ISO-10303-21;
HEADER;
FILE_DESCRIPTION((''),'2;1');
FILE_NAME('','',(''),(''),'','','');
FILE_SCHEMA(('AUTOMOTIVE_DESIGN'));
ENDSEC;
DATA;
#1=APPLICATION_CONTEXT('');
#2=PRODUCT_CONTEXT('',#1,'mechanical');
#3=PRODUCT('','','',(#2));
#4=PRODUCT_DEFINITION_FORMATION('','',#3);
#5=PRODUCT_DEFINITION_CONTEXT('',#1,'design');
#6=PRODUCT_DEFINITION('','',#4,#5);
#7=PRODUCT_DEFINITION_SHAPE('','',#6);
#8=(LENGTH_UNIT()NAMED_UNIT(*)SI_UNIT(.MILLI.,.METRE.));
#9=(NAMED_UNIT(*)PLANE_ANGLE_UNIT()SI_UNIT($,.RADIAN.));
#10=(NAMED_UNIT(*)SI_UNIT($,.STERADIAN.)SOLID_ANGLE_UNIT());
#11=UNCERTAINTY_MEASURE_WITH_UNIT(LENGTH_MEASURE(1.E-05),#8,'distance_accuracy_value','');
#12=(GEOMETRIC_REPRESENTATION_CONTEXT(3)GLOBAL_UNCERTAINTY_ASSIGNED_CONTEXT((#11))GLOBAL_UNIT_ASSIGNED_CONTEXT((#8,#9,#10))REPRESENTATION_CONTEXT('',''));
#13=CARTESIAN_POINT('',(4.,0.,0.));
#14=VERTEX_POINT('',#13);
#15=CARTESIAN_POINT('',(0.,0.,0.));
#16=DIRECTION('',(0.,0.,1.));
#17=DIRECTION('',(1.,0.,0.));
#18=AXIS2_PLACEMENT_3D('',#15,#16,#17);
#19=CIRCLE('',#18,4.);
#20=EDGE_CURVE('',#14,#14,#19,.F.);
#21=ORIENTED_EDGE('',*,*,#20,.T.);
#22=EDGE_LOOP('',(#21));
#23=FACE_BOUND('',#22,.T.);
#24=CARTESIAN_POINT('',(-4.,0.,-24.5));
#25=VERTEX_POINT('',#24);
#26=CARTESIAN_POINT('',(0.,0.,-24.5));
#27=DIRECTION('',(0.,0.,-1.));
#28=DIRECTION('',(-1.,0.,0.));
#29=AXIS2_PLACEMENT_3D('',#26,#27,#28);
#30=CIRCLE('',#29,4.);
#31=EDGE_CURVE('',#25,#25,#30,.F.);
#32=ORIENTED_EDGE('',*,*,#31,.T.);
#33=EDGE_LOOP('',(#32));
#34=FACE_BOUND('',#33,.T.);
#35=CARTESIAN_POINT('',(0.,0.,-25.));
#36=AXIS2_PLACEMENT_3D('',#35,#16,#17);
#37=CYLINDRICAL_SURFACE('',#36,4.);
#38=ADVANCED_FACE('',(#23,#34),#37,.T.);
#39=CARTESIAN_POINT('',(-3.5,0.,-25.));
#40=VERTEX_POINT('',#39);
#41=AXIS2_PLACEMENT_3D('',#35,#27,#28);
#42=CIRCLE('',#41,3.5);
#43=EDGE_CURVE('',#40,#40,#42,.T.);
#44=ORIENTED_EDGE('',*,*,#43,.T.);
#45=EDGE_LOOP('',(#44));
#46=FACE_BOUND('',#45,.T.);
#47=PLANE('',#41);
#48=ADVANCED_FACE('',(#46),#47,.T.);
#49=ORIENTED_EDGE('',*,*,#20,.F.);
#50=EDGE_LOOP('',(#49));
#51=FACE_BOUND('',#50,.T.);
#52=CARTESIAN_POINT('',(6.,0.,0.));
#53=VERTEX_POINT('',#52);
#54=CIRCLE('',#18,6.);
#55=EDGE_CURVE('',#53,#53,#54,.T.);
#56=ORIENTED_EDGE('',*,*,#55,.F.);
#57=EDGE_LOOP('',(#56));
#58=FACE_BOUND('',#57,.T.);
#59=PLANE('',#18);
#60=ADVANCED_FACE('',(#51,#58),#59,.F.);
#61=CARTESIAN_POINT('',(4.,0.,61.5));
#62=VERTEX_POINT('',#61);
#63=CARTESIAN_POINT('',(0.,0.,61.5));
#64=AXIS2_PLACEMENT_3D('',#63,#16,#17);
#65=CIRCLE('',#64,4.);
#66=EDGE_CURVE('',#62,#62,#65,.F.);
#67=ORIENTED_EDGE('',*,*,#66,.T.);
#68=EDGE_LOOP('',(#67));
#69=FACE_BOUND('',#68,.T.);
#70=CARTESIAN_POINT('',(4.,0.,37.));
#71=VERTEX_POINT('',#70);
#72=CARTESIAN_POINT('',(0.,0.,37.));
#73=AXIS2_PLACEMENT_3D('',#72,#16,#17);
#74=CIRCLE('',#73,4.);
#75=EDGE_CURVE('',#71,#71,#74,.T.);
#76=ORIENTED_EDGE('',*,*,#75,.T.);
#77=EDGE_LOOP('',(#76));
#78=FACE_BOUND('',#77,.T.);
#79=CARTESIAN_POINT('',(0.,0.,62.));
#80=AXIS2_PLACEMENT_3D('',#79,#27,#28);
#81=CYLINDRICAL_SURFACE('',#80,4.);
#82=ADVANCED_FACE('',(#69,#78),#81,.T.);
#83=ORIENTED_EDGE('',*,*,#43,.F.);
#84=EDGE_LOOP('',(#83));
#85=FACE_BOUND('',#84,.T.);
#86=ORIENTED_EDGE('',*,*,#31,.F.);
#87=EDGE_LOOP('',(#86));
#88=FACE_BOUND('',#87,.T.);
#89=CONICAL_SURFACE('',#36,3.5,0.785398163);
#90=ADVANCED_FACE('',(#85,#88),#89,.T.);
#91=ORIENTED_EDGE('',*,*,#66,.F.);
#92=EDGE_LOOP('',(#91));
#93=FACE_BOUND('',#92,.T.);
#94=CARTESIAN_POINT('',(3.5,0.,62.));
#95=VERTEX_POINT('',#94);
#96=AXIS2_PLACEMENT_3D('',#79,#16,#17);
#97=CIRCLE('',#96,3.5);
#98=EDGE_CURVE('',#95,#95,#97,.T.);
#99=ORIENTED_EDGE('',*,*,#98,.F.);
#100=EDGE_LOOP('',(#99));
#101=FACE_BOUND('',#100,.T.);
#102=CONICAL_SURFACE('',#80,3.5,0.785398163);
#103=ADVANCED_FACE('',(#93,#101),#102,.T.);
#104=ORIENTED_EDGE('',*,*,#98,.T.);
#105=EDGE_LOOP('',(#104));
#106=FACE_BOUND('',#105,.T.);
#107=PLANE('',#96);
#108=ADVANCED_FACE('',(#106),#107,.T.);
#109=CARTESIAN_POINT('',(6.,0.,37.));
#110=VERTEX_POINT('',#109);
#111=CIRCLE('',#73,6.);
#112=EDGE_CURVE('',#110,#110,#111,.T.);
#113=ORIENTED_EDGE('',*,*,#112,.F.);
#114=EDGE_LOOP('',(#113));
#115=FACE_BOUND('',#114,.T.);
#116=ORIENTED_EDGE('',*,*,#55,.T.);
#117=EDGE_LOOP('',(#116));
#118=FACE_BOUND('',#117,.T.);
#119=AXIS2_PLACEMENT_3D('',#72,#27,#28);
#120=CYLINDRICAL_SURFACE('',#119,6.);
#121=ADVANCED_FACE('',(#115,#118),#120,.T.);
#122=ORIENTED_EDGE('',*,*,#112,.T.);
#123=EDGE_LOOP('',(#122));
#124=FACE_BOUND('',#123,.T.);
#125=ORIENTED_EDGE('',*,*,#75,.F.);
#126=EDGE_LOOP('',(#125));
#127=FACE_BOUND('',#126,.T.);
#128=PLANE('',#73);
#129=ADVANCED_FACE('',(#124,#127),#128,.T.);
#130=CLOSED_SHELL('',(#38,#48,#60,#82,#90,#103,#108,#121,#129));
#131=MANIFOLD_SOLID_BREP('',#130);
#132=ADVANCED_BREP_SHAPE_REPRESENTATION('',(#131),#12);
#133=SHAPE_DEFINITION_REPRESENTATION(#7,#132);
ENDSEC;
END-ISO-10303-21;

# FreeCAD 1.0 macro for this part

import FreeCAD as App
import Part
import Sketcher

V = App.Vector
Q = App.Units.Quantity


def edges_at(feature, points):
    """Names of the edges that pass closest to the given points."""
    edges = feature.Shape.Edges
    near = lambda p: min(range(len(edges)), key=lambda i: edges[i].distToShape(Part.Vertex(*p))[0])
    return sorted({f"Edge{near(p) + 1}" for p in points})

doc = App.newDocument("Part")
body = doc.addObject("PartDesign::Body", "Body")

# Sketch on XY plane
sketch1 = doc.addObject("Sketcher::SketchObject", "Sketch")
body.addObject(sketch1)
sketch1.AttachmentSupport = (doc.XY_Plane, [""])
sketch1.MapMode = "FlatFace"
sketch1.addGeometry(Part.Circle(V(0, 0, 0), V(0, 0, 1), 6), False)
sketch1.addConstraint([
    Sketcher.Constraint("Coincident", 0, 3, -1, 1),
    Sketcher.Constraint("Diameter", 0, Q("12 mm")),
])
pad1 = doc.addObject("PartDesign::Pad", "Pad")
body.addObject(pad1)
pad1.Profile = sketch1
pad1.Length = 37

# Sketch on XY plane
sketch2 = doc.addObject("Sketcher::SketchObject", "Sketch001")
body.addObject(sketch2)
sketch2.AttachmentSupport = (doc.XY_Plane, [""])
sketch2.MapMode = "FlatFace"
sketch2.AttachmentOffset = App.Placement(V(0, 0, 37), App.Rotation())
sketch2.addGeometry(Part.Circle(V(0, 0, 0), V(0, 0, 1), 4), False)
sketch2.addConstraint([
    Sketcher.Constraint("Coincident", 0, 3, -1, 1),
    Sketcher.Constraint("Diameter", 0, Q("8 mm")),
])
pad2 = doc.addObject("PartDesign::Pad", "Pad001")
body.addObject(pad2)
pad2.Profile = sketch2
pad2.Length = 25

# Sketch on XY plane
sketch3 = doc.addObject("Sketcher::SketchObject", "Sketch002")
body.addObject(sketch3)
sketch3.AttachmentSupport = (doc.XY_Plane, [""])
sketch3.MapMode = "FlatFace"
sketch3.AttachmentOffset = App.Placement(V(0, 0, -25), App.Rotation())
sketch3.addGeometry(Part.Circle(V(0, 0, 0), V(0, 0, 1), 4), False)
sketch3.addConstraint([
    Sketcher.Constraint("Coincident", 0, 3, -1, 1),
    Sketcher.Constraint("Diameter", 0, Q("8 mm")),
])
pad3 = doc.addObject("PartDesign::Pad", "Pad002")
body.addObject(pad3)
pad3.Profile = sketch3
pad3.Length = 25
doc.recompute()

chamfer = doc.addObject("PartDesign::Chamfer", "Chamfer")
body.addObject(chamfer)
chamfer.Base = (pad3, edges_at(pad3, [(-4, 0, -25), (-4, 0, 62)]))
chamfer.Size = 0.5

doc.recompute()
